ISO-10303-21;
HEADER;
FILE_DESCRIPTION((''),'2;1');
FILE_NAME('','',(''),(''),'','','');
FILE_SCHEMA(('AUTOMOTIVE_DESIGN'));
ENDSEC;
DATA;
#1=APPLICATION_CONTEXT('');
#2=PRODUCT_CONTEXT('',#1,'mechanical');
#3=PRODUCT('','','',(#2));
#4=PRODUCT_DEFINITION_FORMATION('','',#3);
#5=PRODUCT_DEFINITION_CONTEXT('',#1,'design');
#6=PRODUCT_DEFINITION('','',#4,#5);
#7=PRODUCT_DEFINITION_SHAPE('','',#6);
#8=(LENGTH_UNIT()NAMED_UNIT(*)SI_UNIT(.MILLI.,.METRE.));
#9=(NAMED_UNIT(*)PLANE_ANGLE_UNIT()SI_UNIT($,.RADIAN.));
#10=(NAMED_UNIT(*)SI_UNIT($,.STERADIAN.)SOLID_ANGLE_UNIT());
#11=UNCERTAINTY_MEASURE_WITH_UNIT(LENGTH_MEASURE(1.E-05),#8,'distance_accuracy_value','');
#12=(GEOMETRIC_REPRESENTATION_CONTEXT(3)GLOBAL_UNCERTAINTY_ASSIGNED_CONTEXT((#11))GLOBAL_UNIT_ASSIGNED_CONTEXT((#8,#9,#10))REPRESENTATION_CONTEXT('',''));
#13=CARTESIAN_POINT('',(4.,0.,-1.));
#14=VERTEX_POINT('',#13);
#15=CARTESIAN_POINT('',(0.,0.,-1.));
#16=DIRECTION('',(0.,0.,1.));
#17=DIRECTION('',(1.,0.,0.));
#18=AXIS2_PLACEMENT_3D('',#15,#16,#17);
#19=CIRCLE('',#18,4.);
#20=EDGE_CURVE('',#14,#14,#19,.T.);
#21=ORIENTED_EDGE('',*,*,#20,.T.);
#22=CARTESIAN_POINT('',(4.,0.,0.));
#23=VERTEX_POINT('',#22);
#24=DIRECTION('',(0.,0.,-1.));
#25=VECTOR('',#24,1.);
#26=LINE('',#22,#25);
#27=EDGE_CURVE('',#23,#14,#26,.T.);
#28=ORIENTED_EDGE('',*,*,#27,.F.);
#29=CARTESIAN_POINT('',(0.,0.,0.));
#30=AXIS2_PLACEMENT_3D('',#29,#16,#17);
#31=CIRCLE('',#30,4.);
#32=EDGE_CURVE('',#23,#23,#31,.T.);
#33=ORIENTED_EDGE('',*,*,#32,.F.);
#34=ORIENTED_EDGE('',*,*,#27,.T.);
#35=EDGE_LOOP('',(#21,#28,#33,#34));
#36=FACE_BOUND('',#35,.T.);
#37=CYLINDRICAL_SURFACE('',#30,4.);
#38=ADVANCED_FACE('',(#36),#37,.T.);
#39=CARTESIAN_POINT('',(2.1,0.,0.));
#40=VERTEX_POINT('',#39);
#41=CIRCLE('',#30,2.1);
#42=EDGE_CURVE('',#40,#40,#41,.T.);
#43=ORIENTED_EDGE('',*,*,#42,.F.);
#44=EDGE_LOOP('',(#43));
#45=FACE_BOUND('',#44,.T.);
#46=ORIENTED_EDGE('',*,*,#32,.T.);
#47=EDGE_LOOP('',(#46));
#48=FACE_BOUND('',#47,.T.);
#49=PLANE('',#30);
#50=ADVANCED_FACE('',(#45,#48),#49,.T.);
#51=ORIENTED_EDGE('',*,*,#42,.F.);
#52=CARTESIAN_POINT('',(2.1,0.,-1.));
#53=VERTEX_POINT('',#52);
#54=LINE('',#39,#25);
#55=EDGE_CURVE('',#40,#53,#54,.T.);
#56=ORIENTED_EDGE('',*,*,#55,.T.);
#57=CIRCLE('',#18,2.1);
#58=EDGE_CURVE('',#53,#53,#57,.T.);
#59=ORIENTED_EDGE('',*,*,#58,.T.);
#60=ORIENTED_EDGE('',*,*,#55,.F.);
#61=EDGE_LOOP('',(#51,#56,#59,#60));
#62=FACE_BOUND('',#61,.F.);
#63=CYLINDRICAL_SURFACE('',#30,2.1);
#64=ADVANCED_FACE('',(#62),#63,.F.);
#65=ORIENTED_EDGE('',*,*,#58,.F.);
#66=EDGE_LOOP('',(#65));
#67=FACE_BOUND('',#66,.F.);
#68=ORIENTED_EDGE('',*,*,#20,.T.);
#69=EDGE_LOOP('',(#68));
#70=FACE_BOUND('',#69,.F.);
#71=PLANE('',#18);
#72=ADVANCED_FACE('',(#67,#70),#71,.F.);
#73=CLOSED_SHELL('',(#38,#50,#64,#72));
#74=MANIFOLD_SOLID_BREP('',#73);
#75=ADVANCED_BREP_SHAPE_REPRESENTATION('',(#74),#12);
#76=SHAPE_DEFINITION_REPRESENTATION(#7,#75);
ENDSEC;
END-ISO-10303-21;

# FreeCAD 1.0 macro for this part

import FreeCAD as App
import Part
import Sketcher
from FreeCAD import Vector

doc = App.newDocument("Part")
body = doc.addObject("PartDesign::Body", "Body")

sketch1 = body.newObject("Sketcher::SketchObject", "Sketch")
sketch1.AttachmentSupport = (doc.getObject("XY_Plane"), [""])
sketch1.MapMode = "FlatFace"
sketch1.addGeometry(Part.Circle(Vector(0, 0, 0), Vector(0, 0, 1), 4), False)
sketch1.addGeometry(Part.Circle(Vector(0, 0, 0), Vector(0, 0, 1), 2.1), False)
sketch1.addConstraint(Sketcher.Constraint("Coincident", 0, 3, -1, 1))
sketch1.addConstraint(Sketcher.Constraint("Coincident", 1, 3, -1, 1))
sketch1.addConstraint(Sketcher.Constraint("Diameter", 0, 8.0))
sketch1.addConstraint(Sketcher.Constraint("Diameter", 1, 4.2))
pad1 = body.newObject("PartDesign::Pad", "Pad")
pad1.Profile = sketch1
pad1.Length = 1
pad1.Reversed = True

doc.recompute()
